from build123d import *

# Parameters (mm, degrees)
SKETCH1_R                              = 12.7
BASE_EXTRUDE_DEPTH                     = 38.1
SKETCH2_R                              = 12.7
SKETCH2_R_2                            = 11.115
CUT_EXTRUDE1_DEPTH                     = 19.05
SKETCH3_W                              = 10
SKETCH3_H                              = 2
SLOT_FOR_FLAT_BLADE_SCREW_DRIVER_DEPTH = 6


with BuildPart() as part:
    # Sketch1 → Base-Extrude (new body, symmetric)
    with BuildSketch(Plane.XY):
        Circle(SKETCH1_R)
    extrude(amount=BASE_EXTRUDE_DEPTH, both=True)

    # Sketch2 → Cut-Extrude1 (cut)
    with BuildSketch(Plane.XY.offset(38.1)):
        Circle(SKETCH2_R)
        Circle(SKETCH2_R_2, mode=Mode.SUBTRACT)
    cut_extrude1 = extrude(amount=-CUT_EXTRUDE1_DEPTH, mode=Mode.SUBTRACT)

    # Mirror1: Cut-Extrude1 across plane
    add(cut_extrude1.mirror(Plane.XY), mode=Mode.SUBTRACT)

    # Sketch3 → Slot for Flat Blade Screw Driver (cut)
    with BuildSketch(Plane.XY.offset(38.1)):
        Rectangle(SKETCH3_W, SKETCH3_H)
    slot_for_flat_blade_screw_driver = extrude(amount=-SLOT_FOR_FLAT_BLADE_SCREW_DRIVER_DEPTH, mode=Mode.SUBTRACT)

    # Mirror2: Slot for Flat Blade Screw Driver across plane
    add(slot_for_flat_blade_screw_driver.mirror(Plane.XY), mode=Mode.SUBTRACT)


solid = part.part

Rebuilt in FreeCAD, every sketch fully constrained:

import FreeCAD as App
import Part
import Sketcher
from FreeCAD import Vector
Q = App.Units.Quantity

doc = App.newDocument("Part")
body = doc.addObject("PartDesign::Body", "Body")

# Sketch on XY plane
sketch1 = body.newObject("Sketcher::SketchObject", "Sketch")
sketch1.AttachmentSupport = (doc.getObject("XY_Plane"), [""])
sketch1.MapMode = "FlatFace"
sketch1.addGeometry(Part.Circle(Vector(0, 0, 0), Vector(0, 0, 1), 13), False)
sketch1.addConstraint([
    Sketcher.Constraint("Coincident", 0, 3, -1, 1),
    Sketcher.Constraint("Diameter", 0, Q("25.4 mm")),
])
pad1 = body.newObject("PartDesign::Pad", "Pad")
pad1.Profile = sketch1
pad1.Length = 76.2
pad1.Midplane = True

# Sketch on XY plane
sketch2 = body.newObject("Sketcher::SketchObject", "Sketch001")
sketch2.AttachmentSupport = (doc.getObject("XY_Plane"), [""])
sketch2.MapMode = "FlatFace"
sketch2.AttachmentOffset = App.Placement(Vector(0, 0, 38.1), App.Rotation())
sketch2.addGeometry([
    Part.Circle(Vector(0, 0, 0), Vector(0, 0, 1), 13),
    Part.Circle(Vector(0, 0, 0), Vector(0, 0, 1), 11),
], False)
sketch2.addConstraint([
    Sketcher.Constraint("Coincident", 0, 3, -1, 1),
    Sketcher.Constraint("Coincident", 1, 3, -1, 1),
    Sketcher.Constraint("Diameter", 0, Q("25.4 mm")),
    Sketcher.Constraint("Diameter", 1, Q("22.23 mm")),
])
pocket1 = body.newObject("PartDesign::Pocket", "Pocket")
pocket1.Profile = sketch2
pocket1.Length = 19.05
doc.recompute()

mirrored = body.newObject("PartDesign::Mirrored", "Mirrored")
mirrored.Originals = [pocket1]
mirrored.MirrorPlane = (doc.getObject("XY_Plane"), [""])
body.Tip = mirrored

# Sketch on XY plane
sketch3 = body.newObject("Sketcher::SketchObject", "Sketch002")
sketch3.AttachmentSupport = (doc.getObject("XY_Plane"), [""])
sketch3.MapMode = "FlatFace"
sketch3.AttachmentOffset = App.Placement(Vector(0, 0, 38.1), App.Rotation())
sketch3.addGeometry([
    Part.LineSegment(Vector(-5, 1, 0), Vector(-5, -1, 0)),
    Part.LineSegment(Vector(-5, -1, 0), Vector(5, -1, 0)),
    Part.LineSegment(Vector(5, -1, 0), Vector(5, 1, 0)),
    Part.LineSegment(Vector(5, 1, 0), Vector(-5, 1, 0)),
], False)
sketch3.addConstraint([
    Sketcher.Constraint("Coincident", 0, 2, 1, 1),
    Sketcher.Constraint("Coincident", 1, 2, 2, 1),
    Sketcher.Constraint("Coincident", 2, 2, 3, 1),
    Sketcher.Constraint("Coincident", 3, 2, 0, 1),
    Sketcher.Constraint("Vertical", 0),
    Sketcher.Constraint("Horizontal", 1),
    Sketcher.Constraint("Vertical", 2),
    Sketcher.Constraint("Horizontal", 3),
    Sketcher.Constraint("Symmetric", 0, 2, 2, 2, -1, 1),
    Sketcher.Constraint("DistanceX", 1, 1, 1, 2, Q("10 mm")),
    Sketcher.Constraint("DistanceY", 0, 2, 0, 1, Q("2 mm")),
])
pocket2 = body.newObject("PartDesign::Pocket", "Pocket001")
pocket2.Profile = sketch3
pocket2.Length = 6
doc.recompute()

mirrored2 = body.newObject("PartDesign::Mirrored", "Mirrored001")
mirrored2.Originals = [pocket2]
mirrored2.MirrorPlane = (doc.getObject("XY_Plane"), [""])
body.Tip = mirrored2

doc.recompute()
